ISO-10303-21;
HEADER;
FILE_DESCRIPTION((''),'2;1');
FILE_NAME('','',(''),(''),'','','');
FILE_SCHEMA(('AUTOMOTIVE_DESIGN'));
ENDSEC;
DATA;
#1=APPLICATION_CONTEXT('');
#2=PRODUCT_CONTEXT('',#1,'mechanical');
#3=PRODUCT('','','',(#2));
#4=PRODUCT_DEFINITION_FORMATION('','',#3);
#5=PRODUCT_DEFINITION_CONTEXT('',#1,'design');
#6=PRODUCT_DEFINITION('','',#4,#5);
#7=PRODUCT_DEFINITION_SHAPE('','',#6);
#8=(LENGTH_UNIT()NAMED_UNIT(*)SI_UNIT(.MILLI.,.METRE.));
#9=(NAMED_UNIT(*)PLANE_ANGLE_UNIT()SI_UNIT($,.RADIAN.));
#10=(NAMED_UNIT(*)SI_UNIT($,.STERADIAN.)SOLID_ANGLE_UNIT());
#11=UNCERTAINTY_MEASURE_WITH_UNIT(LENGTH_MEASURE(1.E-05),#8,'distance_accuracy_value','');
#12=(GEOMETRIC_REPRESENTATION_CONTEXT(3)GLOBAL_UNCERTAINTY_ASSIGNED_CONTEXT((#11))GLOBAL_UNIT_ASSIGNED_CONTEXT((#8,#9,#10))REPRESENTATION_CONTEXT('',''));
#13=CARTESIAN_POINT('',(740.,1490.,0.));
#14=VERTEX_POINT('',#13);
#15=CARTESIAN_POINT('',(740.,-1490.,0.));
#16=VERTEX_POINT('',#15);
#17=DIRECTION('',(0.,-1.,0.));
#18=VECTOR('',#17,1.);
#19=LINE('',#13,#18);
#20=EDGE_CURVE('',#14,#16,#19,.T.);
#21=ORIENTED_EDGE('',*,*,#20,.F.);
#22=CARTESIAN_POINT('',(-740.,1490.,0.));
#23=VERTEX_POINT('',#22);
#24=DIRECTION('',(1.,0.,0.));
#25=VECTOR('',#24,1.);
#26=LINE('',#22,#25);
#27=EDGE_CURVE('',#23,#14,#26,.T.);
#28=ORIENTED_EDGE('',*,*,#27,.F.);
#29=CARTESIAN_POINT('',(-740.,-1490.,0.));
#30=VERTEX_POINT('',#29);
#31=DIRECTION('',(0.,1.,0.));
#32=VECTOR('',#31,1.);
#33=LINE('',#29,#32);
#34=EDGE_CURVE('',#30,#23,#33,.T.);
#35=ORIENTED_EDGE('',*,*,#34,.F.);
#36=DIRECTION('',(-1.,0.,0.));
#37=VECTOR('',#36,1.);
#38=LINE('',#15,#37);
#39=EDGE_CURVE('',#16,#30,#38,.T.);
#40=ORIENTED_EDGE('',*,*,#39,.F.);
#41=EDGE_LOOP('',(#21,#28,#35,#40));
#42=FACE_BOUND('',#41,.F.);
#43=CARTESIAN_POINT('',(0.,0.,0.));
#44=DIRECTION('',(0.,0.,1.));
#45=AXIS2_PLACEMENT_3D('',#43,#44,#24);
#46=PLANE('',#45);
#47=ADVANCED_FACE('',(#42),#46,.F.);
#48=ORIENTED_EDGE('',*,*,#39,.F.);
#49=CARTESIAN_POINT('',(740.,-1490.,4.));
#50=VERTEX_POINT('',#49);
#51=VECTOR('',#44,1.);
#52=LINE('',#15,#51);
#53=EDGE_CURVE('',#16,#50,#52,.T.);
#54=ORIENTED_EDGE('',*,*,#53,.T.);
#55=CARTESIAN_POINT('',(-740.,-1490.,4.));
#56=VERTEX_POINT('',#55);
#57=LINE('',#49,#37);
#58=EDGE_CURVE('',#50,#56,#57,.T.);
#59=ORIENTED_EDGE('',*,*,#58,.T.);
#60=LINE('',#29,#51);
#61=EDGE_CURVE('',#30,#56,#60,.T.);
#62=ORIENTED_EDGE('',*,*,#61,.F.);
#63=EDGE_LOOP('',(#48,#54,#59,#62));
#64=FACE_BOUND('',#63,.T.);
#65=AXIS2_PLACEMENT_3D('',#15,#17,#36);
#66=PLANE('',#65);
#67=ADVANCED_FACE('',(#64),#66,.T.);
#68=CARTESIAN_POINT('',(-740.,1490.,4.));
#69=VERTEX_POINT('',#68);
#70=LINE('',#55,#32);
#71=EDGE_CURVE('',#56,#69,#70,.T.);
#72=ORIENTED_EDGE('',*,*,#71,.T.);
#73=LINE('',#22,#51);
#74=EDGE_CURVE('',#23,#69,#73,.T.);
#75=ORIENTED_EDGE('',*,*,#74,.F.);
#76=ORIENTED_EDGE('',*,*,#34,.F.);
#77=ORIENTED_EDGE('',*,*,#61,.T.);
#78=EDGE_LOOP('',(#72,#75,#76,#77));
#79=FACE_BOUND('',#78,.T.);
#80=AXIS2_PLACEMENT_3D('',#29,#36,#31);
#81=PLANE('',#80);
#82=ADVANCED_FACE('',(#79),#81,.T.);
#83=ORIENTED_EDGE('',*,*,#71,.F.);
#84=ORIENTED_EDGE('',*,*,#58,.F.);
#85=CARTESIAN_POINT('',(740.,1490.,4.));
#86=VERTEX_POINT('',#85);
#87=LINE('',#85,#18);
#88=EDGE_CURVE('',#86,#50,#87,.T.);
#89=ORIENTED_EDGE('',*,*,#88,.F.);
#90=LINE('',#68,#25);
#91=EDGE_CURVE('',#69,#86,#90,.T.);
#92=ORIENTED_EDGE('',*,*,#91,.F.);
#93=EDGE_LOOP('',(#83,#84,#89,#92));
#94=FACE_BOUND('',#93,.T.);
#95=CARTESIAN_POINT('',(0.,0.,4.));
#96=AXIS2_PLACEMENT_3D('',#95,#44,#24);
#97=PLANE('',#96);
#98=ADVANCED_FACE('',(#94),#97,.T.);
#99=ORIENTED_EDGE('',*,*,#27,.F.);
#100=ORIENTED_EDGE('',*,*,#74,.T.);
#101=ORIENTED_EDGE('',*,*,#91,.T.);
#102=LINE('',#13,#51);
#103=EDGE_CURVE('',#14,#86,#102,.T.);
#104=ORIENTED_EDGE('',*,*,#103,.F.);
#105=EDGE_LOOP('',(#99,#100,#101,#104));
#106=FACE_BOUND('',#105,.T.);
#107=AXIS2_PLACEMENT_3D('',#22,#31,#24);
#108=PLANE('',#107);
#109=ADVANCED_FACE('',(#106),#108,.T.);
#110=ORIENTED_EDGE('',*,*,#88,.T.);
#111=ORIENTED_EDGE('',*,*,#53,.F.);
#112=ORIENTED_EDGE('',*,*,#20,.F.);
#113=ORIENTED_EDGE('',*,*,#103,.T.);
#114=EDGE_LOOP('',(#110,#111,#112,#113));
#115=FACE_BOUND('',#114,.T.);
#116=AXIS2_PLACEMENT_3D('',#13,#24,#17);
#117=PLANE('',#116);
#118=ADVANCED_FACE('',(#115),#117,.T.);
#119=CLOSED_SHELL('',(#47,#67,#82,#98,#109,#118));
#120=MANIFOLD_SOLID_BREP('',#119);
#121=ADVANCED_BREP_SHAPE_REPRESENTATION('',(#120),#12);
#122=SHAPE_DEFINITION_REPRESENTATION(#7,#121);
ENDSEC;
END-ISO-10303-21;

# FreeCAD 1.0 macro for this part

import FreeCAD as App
import Part
import Sketcher
Q = App.Units.Quantity

doc = App.newDocument("Part")
params = doc.addObject("Spreadsheet::Sheet", "Params")
for row, (alias, value) in enumerate([
    ("sketch1_width", "1480 mm"),
    ("sketch1_height", "2980 mm"),
    ("pad1_length", "4 mm"),
], start=1):
    params.set(f"A{row}", alias)
    params.set(f"B{row}", "=" + value)
    params.setAlias(f"B{row}", alias)

body = doc.addObject("PartDesign::Body", "Body")

# Sketch on XY plane
sketch1 = doc.addObject("Sketcher::SketchObject", "Sketch")
body.addObject(sketch1)
sketch1.AttachmentSupport = (doc.XY_Plane, [""])
sketch1.MapMode = "FlatFace"
sketch1.addGeometry(Part.LineSegment(App.Vector(-740, -1490, 0), App.Vector(740, -1490, 0)), False)
sketch1.addGeometry(Part.LineSegment(App.Vector(740, -1490, 0), App.Vector(740, 1490, 0)), False)
sketch1.addGeometry(Part.LineSegment(App.Vector(740, 1490, 0), App.Vector(-740, 1490, 0)), False)
sketch1.addGeometry(Part.LineSegment(App.Vector(-740, 1490, 0), App.Vector(-740, -1490, 0)), False)
sketch1.addConstraint(Sketcher.Constraint("Coincident", 0, 2, 1, 1))
sketch1.addConstraint(Sketcher.Constraint("Coincident", 1, 2, 2, 1))
sketch1.addConstraint(Sketcher.Constraint("Coincident", 2, 2, 3, 1))
sketch1.addConstraint(Sketcher.Constraint("Coincident", 3, 2, 0, 1))
sketch1.addConstraint(Sketcher.Constraint("Horizontal", 0))
sketch1.addConstraint(Sketcher.Constraint("Vertical", 1))
sketch1.addConstraint(Sketcher.Constraint("Horizontal", 2))
sketch1.addConstraint(Sketcher.Constraint("Vertical", 3))
sketch1.addConstraint(Sketcher.Constraint("Symmetric", 0, 2, 2, 2, -1, 1))
sketch1.addConstraint(Sketcher.Constraint("DistanceX", 0, 1, 0, 2, Q("1480 mm")))
sketch1.addConstraint(Sketcher.Constraint("DistanceY", 1, 1, 1, 2, Q("2980 mm")))
sketch1.setExpression("Constraints[9]", "Params.sketch1_width")
sketch1.setExpression("Constraints[10]", "Params.sketch1_height")
pad1 = doc.addObject("PartDesign::Pad", "Pad")
body.addObject(pad1)
pad1.Profile = sketch1
pad1.setExpression("Length", "Params.pad1_length")

doc.recompute()
